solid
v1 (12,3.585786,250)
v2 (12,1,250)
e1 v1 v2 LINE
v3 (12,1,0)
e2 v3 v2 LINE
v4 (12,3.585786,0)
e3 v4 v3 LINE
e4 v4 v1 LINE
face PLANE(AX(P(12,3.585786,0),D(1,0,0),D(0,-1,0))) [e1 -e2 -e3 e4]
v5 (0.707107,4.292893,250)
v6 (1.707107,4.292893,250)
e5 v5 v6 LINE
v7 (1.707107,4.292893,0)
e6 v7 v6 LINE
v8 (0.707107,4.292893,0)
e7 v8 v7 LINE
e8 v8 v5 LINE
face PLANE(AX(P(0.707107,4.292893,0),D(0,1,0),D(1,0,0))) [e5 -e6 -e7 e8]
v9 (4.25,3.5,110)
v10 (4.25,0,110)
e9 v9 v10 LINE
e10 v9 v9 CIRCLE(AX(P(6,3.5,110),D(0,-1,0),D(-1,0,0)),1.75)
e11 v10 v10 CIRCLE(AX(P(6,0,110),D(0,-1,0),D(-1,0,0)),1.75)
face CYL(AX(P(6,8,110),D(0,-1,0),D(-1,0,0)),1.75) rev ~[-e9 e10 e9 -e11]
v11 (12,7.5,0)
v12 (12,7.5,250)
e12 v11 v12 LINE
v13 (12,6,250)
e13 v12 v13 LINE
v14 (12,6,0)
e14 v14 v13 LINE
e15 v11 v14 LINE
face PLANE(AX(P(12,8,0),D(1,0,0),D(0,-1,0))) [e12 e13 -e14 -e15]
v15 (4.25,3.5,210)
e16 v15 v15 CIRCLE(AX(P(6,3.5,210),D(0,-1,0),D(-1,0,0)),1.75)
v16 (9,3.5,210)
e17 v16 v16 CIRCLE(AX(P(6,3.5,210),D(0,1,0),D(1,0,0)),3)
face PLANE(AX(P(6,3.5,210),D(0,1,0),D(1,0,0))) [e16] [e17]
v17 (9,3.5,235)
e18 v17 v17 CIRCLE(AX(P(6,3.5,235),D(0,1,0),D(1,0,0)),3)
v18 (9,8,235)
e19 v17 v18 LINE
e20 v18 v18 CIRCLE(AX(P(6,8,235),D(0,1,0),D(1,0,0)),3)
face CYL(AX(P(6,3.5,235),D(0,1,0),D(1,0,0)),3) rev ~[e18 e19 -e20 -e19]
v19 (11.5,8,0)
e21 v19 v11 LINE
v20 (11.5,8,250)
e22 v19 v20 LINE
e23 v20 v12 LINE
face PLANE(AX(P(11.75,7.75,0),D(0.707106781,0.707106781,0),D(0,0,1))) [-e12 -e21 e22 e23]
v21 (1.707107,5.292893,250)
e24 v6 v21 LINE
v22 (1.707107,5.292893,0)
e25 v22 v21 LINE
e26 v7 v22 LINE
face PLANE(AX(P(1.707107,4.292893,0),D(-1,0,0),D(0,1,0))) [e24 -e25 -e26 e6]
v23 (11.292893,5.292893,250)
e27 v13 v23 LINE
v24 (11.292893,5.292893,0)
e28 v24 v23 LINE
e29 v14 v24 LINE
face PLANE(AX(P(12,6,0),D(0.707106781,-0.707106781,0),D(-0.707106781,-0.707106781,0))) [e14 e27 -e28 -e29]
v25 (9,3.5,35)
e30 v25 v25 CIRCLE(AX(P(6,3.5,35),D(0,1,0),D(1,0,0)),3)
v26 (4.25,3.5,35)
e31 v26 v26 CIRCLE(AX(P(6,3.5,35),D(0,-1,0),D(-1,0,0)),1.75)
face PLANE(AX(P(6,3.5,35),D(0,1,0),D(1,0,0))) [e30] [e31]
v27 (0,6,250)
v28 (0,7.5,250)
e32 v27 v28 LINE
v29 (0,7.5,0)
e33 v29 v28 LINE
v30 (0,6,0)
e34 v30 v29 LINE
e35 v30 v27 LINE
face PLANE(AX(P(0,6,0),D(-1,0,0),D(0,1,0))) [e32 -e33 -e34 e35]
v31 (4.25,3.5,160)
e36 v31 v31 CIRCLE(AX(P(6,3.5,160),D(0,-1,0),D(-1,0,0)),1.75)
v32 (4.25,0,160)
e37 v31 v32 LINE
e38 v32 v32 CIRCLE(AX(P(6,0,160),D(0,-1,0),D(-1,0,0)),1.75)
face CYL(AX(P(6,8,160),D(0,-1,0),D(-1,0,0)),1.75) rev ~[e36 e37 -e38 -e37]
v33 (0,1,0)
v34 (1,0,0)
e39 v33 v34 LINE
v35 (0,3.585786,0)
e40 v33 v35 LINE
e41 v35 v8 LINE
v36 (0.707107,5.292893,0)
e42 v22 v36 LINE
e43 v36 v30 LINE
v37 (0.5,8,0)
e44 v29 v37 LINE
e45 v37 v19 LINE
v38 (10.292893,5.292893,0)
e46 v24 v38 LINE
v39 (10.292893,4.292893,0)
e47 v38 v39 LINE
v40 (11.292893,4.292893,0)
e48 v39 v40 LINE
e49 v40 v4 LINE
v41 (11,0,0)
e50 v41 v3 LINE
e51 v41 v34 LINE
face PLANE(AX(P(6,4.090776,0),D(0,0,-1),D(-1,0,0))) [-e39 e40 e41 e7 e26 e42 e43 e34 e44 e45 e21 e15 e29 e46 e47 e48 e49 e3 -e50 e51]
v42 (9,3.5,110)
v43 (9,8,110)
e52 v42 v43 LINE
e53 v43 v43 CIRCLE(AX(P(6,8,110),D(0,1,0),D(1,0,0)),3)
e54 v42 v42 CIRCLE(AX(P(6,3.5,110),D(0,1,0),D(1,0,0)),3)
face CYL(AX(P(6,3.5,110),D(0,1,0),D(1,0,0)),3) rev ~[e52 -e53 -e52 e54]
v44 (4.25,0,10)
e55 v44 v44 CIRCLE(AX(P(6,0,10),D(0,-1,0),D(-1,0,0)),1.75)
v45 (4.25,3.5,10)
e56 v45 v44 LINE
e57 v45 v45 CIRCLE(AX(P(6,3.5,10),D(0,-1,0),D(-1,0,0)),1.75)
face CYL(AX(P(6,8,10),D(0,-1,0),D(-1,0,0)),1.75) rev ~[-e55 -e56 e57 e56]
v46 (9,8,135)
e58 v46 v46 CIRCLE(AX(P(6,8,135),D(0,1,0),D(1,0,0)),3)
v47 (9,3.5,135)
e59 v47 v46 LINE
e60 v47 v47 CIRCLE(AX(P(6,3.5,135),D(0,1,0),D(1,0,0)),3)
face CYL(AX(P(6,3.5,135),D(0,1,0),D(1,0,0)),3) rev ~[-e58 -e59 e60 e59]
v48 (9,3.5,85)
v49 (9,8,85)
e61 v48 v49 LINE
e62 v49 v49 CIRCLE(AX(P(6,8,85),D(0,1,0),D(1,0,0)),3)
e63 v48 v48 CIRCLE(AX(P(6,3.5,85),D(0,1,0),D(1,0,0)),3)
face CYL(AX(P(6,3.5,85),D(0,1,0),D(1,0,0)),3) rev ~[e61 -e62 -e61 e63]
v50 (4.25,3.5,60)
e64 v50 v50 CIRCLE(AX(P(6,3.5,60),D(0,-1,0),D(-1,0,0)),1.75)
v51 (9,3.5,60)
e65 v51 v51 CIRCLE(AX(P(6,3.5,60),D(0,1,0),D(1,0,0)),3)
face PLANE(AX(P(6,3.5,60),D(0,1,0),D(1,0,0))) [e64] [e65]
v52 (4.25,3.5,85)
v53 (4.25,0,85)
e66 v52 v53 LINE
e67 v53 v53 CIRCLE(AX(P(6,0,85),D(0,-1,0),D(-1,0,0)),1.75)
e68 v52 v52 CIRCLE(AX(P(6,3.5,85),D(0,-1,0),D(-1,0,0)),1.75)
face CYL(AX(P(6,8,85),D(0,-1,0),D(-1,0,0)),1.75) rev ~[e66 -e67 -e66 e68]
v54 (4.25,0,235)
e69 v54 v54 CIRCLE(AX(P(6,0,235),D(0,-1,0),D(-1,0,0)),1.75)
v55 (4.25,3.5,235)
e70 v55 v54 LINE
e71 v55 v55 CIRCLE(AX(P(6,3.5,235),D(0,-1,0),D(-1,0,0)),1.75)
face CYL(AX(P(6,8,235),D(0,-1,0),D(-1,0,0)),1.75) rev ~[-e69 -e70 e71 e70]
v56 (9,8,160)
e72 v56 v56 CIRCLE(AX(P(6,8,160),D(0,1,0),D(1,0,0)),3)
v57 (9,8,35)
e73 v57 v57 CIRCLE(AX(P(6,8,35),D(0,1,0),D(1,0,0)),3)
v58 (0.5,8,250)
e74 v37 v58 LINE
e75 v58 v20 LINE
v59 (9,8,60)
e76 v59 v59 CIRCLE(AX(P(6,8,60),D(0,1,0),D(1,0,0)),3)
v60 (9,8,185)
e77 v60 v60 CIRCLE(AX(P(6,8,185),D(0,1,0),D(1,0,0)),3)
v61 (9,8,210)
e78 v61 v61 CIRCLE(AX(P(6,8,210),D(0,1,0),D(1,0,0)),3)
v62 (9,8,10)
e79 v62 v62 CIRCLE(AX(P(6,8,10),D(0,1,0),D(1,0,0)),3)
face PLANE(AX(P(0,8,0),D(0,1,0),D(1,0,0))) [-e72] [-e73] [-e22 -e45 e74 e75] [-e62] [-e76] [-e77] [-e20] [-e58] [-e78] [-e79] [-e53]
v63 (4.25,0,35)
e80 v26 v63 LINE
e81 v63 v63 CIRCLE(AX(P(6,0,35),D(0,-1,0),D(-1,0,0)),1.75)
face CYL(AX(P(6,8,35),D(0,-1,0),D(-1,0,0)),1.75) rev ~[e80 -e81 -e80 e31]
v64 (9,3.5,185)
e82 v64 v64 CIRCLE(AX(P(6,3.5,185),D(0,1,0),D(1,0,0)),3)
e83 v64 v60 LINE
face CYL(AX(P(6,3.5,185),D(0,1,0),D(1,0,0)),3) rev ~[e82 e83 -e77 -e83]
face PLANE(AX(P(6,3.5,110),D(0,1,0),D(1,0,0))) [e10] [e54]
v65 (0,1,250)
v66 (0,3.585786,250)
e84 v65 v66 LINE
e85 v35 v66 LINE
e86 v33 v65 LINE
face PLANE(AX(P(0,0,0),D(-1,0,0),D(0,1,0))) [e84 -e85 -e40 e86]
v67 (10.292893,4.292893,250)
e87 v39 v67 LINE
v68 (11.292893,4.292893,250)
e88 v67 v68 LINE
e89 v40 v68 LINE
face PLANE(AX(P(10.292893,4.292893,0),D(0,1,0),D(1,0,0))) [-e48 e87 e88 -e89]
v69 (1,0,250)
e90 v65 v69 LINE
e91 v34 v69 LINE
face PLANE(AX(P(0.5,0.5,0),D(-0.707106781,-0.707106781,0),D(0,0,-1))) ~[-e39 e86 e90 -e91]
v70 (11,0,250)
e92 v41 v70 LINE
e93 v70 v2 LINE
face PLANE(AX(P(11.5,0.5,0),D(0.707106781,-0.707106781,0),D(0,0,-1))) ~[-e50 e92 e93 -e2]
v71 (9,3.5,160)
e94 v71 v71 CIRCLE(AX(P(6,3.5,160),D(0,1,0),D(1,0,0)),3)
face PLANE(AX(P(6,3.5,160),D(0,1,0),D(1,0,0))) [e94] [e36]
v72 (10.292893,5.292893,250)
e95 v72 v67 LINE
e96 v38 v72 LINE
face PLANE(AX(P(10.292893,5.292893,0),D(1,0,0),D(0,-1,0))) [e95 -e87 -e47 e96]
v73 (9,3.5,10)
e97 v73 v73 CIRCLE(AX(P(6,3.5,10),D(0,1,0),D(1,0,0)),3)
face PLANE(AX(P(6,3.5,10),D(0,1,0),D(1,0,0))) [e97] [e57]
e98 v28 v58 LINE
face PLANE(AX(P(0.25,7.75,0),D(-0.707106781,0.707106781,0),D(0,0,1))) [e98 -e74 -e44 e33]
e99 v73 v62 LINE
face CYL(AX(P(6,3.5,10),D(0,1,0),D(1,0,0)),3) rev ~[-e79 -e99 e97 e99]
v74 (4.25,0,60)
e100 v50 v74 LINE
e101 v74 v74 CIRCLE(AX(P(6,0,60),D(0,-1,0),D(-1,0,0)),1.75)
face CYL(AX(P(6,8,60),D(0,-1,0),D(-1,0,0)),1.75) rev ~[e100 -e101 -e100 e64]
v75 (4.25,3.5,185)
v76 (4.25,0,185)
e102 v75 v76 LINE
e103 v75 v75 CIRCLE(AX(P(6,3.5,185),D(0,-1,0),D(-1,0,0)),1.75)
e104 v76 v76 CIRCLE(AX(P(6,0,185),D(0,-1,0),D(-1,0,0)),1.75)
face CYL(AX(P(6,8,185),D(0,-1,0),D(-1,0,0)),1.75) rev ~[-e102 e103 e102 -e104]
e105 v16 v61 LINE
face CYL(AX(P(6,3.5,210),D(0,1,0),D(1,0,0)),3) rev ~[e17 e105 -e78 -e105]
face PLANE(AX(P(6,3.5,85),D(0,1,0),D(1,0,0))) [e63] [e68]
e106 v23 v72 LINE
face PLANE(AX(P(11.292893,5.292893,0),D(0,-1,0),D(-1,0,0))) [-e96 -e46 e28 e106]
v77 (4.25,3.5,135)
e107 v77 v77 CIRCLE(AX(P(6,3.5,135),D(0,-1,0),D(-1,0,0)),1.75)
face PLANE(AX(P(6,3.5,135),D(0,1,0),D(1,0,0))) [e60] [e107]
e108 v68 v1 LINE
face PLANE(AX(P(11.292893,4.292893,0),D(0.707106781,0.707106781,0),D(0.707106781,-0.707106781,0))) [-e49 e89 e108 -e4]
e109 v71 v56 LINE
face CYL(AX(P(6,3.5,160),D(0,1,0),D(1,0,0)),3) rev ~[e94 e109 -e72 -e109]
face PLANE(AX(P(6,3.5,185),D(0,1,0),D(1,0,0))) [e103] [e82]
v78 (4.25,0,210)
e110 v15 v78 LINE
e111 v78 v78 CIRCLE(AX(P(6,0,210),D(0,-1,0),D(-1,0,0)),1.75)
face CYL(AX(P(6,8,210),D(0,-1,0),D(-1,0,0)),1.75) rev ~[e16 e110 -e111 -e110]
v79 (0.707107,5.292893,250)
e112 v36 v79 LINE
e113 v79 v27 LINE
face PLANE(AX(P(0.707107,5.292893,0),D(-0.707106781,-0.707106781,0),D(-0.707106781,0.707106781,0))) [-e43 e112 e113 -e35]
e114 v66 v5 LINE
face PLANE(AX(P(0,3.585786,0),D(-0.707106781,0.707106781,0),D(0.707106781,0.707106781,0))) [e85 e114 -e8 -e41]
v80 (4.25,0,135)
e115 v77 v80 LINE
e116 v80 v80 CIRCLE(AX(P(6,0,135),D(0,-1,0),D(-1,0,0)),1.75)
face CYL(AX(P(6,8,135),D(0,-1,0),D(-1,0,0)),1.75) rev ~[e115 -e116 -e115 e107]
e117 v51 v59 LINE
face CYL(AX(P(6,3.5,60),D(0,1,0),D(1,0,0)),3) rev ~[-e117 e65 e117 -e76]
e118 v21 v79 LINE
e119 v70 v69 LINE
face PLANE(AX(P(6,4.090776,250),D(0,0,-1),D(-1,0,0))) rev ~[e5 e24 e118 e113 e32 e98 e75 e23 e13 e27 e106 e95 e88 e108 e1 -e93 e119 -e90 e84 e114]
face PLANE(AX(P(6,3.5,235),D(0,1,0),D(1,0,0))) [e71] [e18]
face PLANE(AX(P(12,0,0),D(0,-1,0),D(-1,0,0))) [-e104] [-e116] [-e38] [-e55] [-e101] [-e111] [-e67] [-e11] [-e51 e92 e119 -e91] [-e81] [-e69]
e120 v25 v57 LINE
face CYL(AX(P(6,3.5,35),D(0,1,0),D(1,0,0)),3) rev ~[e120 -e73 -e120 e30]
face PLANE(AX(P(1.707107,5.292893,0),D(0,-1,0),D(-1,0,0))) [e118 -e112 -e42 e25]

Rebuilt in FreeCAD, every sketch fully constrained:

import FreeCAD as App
import Part
import Sketcher
from FreeCAD import Vector
Q = App.Units.Quantity


def edges_at(feature, points):
    """Names of the edges that pass closest to the given points."""
    edges = feature.Shape.Edges
    near = lambda p: min(range(len(edges)), key=lambda i: edges[i].distToShape(Part.Vertex(*p))[0])
    return sorted({f"Edge{near(p) + 1}" for p in points})

doc = App.newDocument("Part")
body = doc.addObject("PartDesign::Body", "Body")

sketch1 = doc.addObject("Sketcher::SketchObject", "Sketch")
body.addObject(sketch1)
sketch1.AttachmentSupport = (doc.XY_Plane, [""])
sketch1.MapMode = "FlatFace"
sketch1.addGeometry(Part.LineSegment(Vector(0, 3.6, 0), Vector(0, 0, 0)), False)
sketch1.addGeometry(Part.LineSegment(Vector(0, 0, 0), Vector(12, 0, 0)), False)
sketch1.addGeometry(Part.LineSegment(Vector(12, 0, 0), Vector(12, 3.6, 0)), False)
sketch1.addGeometry(Part.LineSegment(Vector(12, 3.6, 0), Vector(11.3, 4.3, 0)), False)
sketch1.addGeometry(Part.LineSegment(Vector(11.3, 4.3, 0), Vector(10.3, 4.3, 0)), False)
sketch1.addGeometry(Part.LineSegment(Vector(10.3, 4.3, 0), Vector(10.3, 5.3, 0)), False)
sketch1.addGeometry(Part.LineSegment(Vector(10.3, 5.3, 0), Vector(11.3, 5.3, 0)), False)
sketch1.addGeometry(Part.LineSegment(Vector(11.3, 5.3, 0), Vector(12, 6, 0)), False)
sketch1.addGeometry(Part.LineSegment(Vector(12, 6, 0), Vector(12, 8, 0)), False)
sketch1.addGeometry(Part.LineSegment(Vector(12, 8, 0), Vector(0, 8, 0)), False)
sketch1.addGeometry(Part.LineSegment(Vector(0, 8, 0), Vector(0, 6, 0)), False)
sketch1.addGeometry(Part.LineSegment(Vector(0, 6, 0), Vector(0.7, 5.3, 0)), False)
sketch1.addGeometry(Part.LineSegment(Vector(0.7, 5.3, 0), Vector(1.7, 5.3, 0)), False)
sketch1.addGeometry(Part.LineSegment(Vector(1.7, 5.3, 0), Vector(1.7, 4.3, 0)), False)
sketch1.addGeometry(Part.LineSegment(Vector(1.7, 4.3, 0), Vector(0.7, 4.3, 0)), False)
sketch1.addGeometry(Part.LineSegment(Vector(0.7, 4.3, 0), Vector(0, 3.6, 0)), False)
sketch1.addConstraint(Sketcher.Constraint("Coincident", 0, 2, 1, 1))
sketch1.addConstraint(Sketcher.Constraint("Coincident", 1, 2, 2, 1))
sketch1.addConstraint(Sketcher.Constraint("Coincident", 2, 2, 3, 1))
sketch1.addConstraint(Sketcher.Constraint("Coincident", 3, 2, 4, 1))
sketch1.addConstraint(Sketcher.Constraint("Coincident", 4, 2, 5, 1))
sketch1.addConstraint(Sketcher.Constraint("Coincident", 5, 2, 6, 1))
sketch1.addConstraint(Sketcher.Constraint("Coincident", 6, 2, 7, 1))
sketch1.addConstraint(Sketcher.Constraint("Coincident", 7, 2, 8, 1))
sketch1.addConstraint(Sketcher.Constraint("Coincident", 8, 2, 9, 1))
sketch1.addConstraint(Sketcher.Constraint("Coincident", 9, 2, 10, 1))
sketch1.addConstraint(Sketcher.Constraint("Coincident", 10, 2, 11, 1))
sketch1.addConstraint(Sketcher.Constraint("Coincident", 11, 2, 12, 1))
sketch1.addConstraint(Sketcher.Constraint("Coincident", 12, 2, 13, 1))
sketch1.addConstraint(Sketcher.Constraint("Coincident", 13, 2, 14, 1))
sketch1.addConstraint(Sketcher.Constraint("Coincident", 14, 2, 15, 1))
sketch1.addConstraint(Sketcher.Constraint("Coincident", 15, 2, 0, 1))
sketch1.addConstraint(Sketcher.Constraint("Vertical", 0))
sketch1.addConstraint(Sketcher.Constraint("Horizontal", 1))
sketch1.addConstraint(Sketcher.Constraint("Vertical", 2))
sketch1.addConstraint(Sketcher.Constraint("Horizontal", 4))
sketch1.addConstraint(Sketcher.Constraint("Vertical", 5))
sketch1.addConstraint(Sketcher.Constraint("Horizontal", 6))
sketch1.addConstraint(Sketcher.Constraint("Vertical", 8))
sketch1.addConstraint(Sketcher.Constraint("Horizontal", 9))
sketch1.addConstraint(Sketcher.Constraint("Vertical", 10))
sketch1.addConstraint(Sketcher.Constraint("Horizontal", 12))
sketch1.addConstraint(Sketcher.Constraint("Vertical", 13))
sketch1.addConstraint(Sketcher.Constraint("Horizontal", 14))
sketch1.addConstraint(Sketcher.Constraint("Coincident", 0, 2, -1, 1))
sketch1.addConstraint(Sketcher.Constraint("PointOnObject", 9, 2, -2))
sketch1.addConstraint(Sketcher.Constraint("Perpendicular", 3, 7))
sketch1.addConstraint(Sketcher.Constraint("Perpendicular", 7, 11))
sketch1.addConstraint(Sketcher.Constraint("Perpendicular", 11, 15))
sketch1.addConstraint(Sketcher.Constraint("Horizontal", 7, 2, 10, 2))
sketch1.addConstraint(Sketcher.Constraint("Horizontal", 6, 2, 11, 2))
sketch1.addConstraint(Sketcher.Constraint("Horizontal", 4, 2, 13, 2))
sketch1.addConstraint(Sketcher.Constraint("Horizontal", 2, 2, 15, 2))
sketch1.addConstraint(Sketcher.Constraint("Vertical", 3, 2, 6, 2))
sketch1.addConstraint(Sketcher.Constraint("Vertical", 2, 2, 7, 2))
sketch1.addConstraint(Sketcher.Constraint("Vertical", 11, 2, 14, 2))
sketch1.addConstraint(Sketcher.Constraint("Equal", 6, 12))
sketch1.addConstraint(Sketcher.Constraint("Equal", 14, 5))
sketch1.addConstraint(Sketcher.Constraint("DistanceX", 1, 1, 1, 2, Q("12 mm")))
sketch1.addConstraint(Sketcher.Constraint("DistanceX", 4, 2, 4, 1, Q("1 mm")))
sketch1.addConstraint(Sketcher.Constraint("DistanceY", 8, 1, 8, 2, Q("2 mm")))
sketch1.addConstraint(Sketcher.Constraint("Distance", 3, Q("1 mm")))
sketch1.addConstraint(Sketcher.Constraint("DistanceY", -1, 1, 7, 2, Q("6 mm")))
pad1 = doc.addObject("PartDesign::Pad", "Pad")
body.addObject(pad1)
pad1.Profile = sketch1
pad1.Length = 250

sketch2 = doc.addObject("Sketcher::SketchObject", "Sketch001")
body.addObject(sketch2)
sketch2.AttachmentSupport = (doc.XZ_Plane, [""])
sketch2.MapMode = "FlatFace"
sketch2.AttachmentOffset = App.Placement(Vector(0, 0, -8), App.Rotation())
sketch2.addGeometry(Part.Circle(Vector(6, 10, 0), Vector(0, 0, 1), 1.8), False)
sketch2.addConstraint(Sketcher.Constraint("Diameter", 0, Q("3.5 mm")))
sketch2.addConstraint(Sketcher.Constraint("DistanceX", -1, 1, 0, 3, Q("6 mm")))
sketch2.addConstraint(Sketcher.Constraint("DistanceY", -1, 1, 0, 3, Q("10 mm")))
doc.recompute()
hole = doc.addObject("PartDesign::Hole", "Hole")
body.addObject(hole)
hole.Profile = sketch2
hole.ThreadType = "None"
hole.Diameter = 3.5
hole.DepthType = "Dimension"
hole.Depth = 9.921567
hole.DrillPoint = "Flat"
hole.HoleCutType = "Counterbore"
hole.HoleCutDiameter = 6
hole.HoleCutDepth = 4.5
hole.Reversed = True
doc.recompute()

linearpattern = doc.addObject("PartDesign::LinearPattern", "LinearPattern")
body.addObject(linearpattern)
linearpattern.Originals = [hole]
linearpattern.Direction = (doc.Z_Axis, [""])
linearpattern.Mode = "offset"
linearpattern.Offset = 25
linearpattern.Occurrences = 10
body.Tip = linearpattern
doc.recompute()

chamfer = doc.addObject("PartDesign::Chamfer", "Chamfer")
body.addObject(chamfer)
chamfer.Base = (linearpattern, edges_at(linearpattern, [(12, 8, 125), (0, 8, 125)]))
chamfer.Size = 0.5
doc.recompute()

chamfer2 = doc.addObject("PartDesign::Chamfer", "Chamfer001")
body.addObject(chamfer2)
chamfer2.Base = (chamfer, edges_at(chamfer, [(0, 0, 125), (12, 0, 125)]))
chamfer2.Size = 1

doc.recompute()
